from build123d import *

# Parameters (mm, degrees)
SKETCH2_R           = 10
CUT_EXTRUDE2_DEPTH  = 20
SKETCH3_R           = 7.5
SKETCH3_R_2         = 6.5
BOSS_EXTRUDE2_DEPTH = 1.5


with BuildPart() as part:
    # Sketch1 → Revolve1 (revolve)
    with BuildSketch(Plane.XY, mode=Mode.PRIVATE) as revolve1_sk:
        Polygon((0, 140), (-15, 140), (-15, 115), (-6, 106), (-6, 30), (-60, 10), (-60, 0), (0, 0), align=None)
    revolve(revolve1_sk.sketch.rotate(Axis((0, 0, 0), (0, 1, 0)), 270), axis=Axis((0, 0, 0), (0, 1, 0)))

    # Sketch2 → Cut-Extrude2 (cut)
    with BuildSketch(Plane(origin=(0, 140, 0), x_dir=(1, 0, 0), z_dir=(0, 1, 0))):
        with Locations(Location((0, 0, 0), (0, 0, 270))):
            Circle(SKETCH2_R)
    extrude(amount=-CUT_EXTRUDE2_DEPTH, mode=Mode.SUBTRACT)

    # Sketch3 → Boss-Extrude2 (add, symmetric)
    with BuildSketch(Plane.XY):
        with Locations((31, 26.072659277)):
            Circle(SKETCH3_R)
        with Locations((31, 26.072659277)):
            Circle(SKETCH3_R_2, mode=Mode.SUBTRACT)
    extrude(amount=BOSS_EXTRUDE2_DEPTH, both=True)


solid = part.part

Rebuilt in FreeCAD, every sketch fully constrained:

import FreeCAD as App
import Part
import Sketcher
Q = App.Units.Quantity


def add_polygon(sketch, points):
    """Adds a closed chain of lines whose ends are joined by coincident constraints."""
    first, n = sketch.GeometryCount, len(points)
    for a, b in zip(points, points[1:] + points[:1]):
        sketch.addGeometry(Part.LineSegment(App.Vector(*a, 0), App.Vector(*b, 0)), False)
    for i in range(n):
        sketch.addConstraint(Sketcher.Constraint("Coincident", first + i, 2, first + (i + 1) % n, 1))

doc = App.newDocument("Part")
params = doc.addObject("Spreadsheet::Sheet", "Params")
for row, (alias, value) in enumerate([
    ("sketch1_width", "15 mm"),
    ("sketch1_width2", "60 mm"),
    ("sketch1_height", "25 mm"),
    ("sketch1_height2", "76 mm"),
    ("sketch1_height3", "10 mm"),
    ("revolution_angle", "360 deg"),
    ("sketch2_diameter", "20 mm"),
    ("pocket1_length", "20 mm"),
    ("sketch3_diameter", "15 mm"),
    ("sketch3_diameter2", "13 mm"),
    ("pad1_length", "3 mm"),
], start=1):
    params.set(f"A{row}", alias)
    params.set(f"B{row}", "=" + value)
    params.setAlias(f"B{row}", alias)

body = doc.addObject("PartDesign::Body", "Body")

# Sketch on XY plane
sketch1 = body.newObject("Sketcher::SketchObject", "Sketch")
sketch1.AttachmentSupport = (doc.getObject("XY_Plane"), [""])
sketch1.MapMode = "FlatFace"
add_polygon(sketch1, [(0, 140), (-15, 140), (-15, 115), (-6, 106), (-6, 30), (-60, 10), (-60, 0), (0, 0)])  # lines 0-7
sketch1.addConstraint([
    Sketcher.Constraint("Horizontal", 0),
    Sketcher.Constraint("Vertical", 1),
    Sketcher.Constraint("Vertical", 3),
    Sketcher.Constraint("Vertical", 5),
    Sketcher.Constraint("Horizontal", 6),
    Sketcher.Constraint("Vertical", 7),
    Sketcher.Constraint("Coincident", 6, 2, -1, 1),
    Sketcher.Constraint("DistanceX", 0, 2, 0, 1, Q("15 mm")),
    Sketcher.Constraint("DistanceX", 6, 1, 6, 2, Q("60 mm")),
    Sketcher.Constraint("DistanceY", 1, 2, 1, 1, Q("25 mm")),
    Sketcher.Constraint("DistanceY", 3, 2, 3, 1, Q("76 mm")),
    Sketcher.Constraint("DistanceY", 5, 2, 5, 1, Q("10 mm")),
    Sketcher.Constraint("DistanceY", 7, 1, 7, 2, Q("140 mm")),
    Sketcher.Constraint("Angle", 2, Q("-45 deg")),
    Sketcher.Constraint("DistanceX", 2, 2, -1, 1, Q("6 mm")),
])
sketch1.setExpression("Constraints[15]", "Params.sketch1_width")
sketch1.setExpression("Constraints[16]", "Params.sketch1_width2")
sketch1.setExpression("Constraints[17]", "Params.sketch1_height")
sketch1.setExpression("Constraints[18]", "Params.sketch1_height2")
sketch1.setExpression("Constraints[19]", "Params.sketch1_height3")
revolution = body.newObject("PartDesign::Revolution", "Revolution")
revolution.Profile = sketch1
revolution.ReferenceAxis = (sketch1, ["V_Axis"])
revolution.setExpression("Angle", "Params.revolution_angle")

# Sketch on XZ plane
sketch2 = body.newObject("Sketcher::SketchObject", "Sketch001")
sketch2.AttachmentSupport = (doc.getObject("XZ_Plane"), [""])
sketch2.MapMode = "FlatFace"
sketch2.AttachmentOffset = App.Placement(App.Vector(0, 0, -140), App.Rotation())
sketch2.addGeometry(Part.Circle(App.Vector(0, 0, 0), App.Vector(0, 0, 1), 10), False)
sketch2.addConstraint([
    Sketcher.Constraint("Coincident", 0, 3, -1, 1),
    Sketcher.Constraint("Diameter", 0, Q("20 mm")),
])
sketch2.setExpression("Constraints[1]", "Params.sketch2_diameter")
pocket1 = body.newObject("PartDesign::Pocket", "Pocket")
pocket1.Profile = sketch2
pocket1.setExpression("Length", "Params.pocket1_length")
pocket1.Reversed = True

# Sketch on XY plane
sketch3 = body.newObject("Sketcher::SketchObject", "Sketch002")
sketch3.AttachmentSupport = (doc.getObject("XY_Plane"), [""])
sketch3.MapMode = "FlatFace"
sketch3.addGeometry([
    Part.Circle(App.Vector(31, 26.072659, 0), App.Vector(0, 0, 1), 7.5),
    Part.Circle(App.Vector(31, 26.072659, 0), App.Vector(0, 0, 1), 6.5),
], False)
sketch3.addConstraint([
    Sketcher.Constraint("Coincident", 1, 3, 0, 3),
    Sketcher.Constraint("Diameter", 0, Q("15 mm")),
    Sketcher.Constraint("Diameter", 1, Q("13 mm")),
    Sketcher.Constraint("DistanceX", -1, 1, 0, 3, Q("31 mm")),
    Sketcher.Constraint("DistanceY", -1, 1, 0, 3, Q("26.072659 mm")),
])
sketch3.setExpression("Constraints[1]", "Params.sketch3_diameter")
sketch3.setExpression("Constraints[2]", "Params.sketch3_diameter2")
pad1 = body.newObject("PartDesign::Pad", "Pad")
pad1.Profile = sketch3
pad1.setExpression("Length", "Params.pad1_length")
pad1.Midplane = True

doc.recompute()
